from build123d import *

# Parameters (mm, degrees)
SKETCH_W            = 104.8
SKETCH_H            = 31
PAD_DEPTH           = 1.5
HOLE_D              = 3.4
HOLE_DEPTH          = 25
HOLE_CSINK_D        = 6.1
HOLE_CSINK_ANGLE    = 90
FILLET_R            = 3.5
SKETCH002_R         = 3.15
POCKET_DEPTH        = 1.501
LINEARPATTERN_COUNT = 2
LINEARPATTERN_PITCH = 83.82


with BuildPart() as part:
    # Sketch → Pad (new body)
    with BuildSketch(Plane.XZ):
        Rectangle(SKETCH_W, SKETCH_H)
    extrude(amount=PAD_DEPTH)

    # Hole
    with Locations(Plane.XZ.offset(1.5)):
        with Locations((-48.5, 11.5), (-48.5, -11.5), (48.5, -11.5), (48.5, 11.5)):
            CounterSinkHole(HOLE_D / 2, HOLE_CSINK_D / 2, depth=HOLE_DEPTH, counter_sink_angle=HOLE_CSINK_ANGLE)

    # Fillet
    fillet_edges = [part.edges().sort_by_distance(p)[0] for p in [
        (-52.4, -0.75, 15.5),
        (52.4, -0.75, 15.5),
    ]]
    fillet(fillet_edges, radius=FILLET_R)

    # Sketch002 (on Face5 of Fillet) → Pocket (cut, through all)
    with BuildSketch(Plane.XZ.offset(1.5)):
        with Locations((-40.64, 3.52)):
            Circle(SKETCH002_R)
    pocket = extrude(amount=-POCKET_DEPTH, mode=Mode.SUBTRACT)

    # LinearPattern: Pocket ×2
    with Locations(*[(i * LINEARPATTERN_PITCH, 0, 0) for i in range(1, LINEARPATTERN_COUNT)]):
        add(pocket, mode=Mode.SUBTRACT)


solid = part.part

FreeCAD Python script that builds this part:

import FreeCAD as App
import Part
import Sketcher

V = App.Vector
Q = App.Units.Quantity


def edges_at(feature, points):
    """Names of the edges that pass closest to the given points."""
    edges = feature.Shape.Edges
    near = lambda p: min(range(len(edges)), key=lambda i: edges[i].distToShape(Part.Vertex(*p))[0])
    return sorted({f"Edge{near(p) + 1}" for p in points})


def add_polygon(sketch, points):
    """Adds a closed chain of lines whose ends are joined by coincident constraints."""
    first, n = sketch.GeometryCount, len(points)
    for a, b in zip(points, points[1:] + points[:1]):
        sketch.addGeometry(Part.LineSegment(App.Vector(*a, 0), App.Vector(*b, 0)), False)
    for i in range(n):
        sketch.addConstraint(Sketcher.Constraint("Coincident", first + i, 2, first + (i + 1) % n, 1))

doc = App.newDocument("Part")
body = doc.addObject("PartDesign::Body", "Body")

sketch1 = doc.addObject("Sketcher::SketchObject", "Sketch")
body.addObject(sketch1)
sketch1.AttachmentSupport = (doc.XZ_Plane, [""])
sketch1.MapMode = "FlatFace"
add_polygon(sketch1, [(-52, 16), (-52, -16), (52, -16), (52, 16)])
sketch1.addConstraint([
    Sketcher.Constraint("Vertical", 0),
    Sketcher.Constraint("Horizontal", 1),
    Sketcher.Constraint("Vertical", 2),
    Sketcher.Constraint("Horizontal", 3),
    Sketcher.Constraint("Symmetric", 0, 2, 2, 2, -1, 1),
    Sketcher.Constraint("DistanceY", 0, 2, 0, 1, Q("31 mm")),
    Sketcher.Constraint("DistanceX", 1, 1, 1, 2, Q("104.8 mm")),
])
pad1 = doc.addObject("PartDesign::Pad", "Pad")
body.addObject(pad1)
pad1.Profile = sketch1
pad1.Length = 1.5

sketch2 = doc.addObject("Sketcher::SketchObject", "Sketch001")
body.addObject(sketch2)
sketch2.AttachmentSupport = (doc.XZ_Plane, [""])
sketch2.MapMode = "FlatFace"
sketch2.AttachmentOffset = App.Placement(V(0, 0, 1.5), App.Rotation())
sketch2.addGeometry([
    Part.Circle(V(-48.5, 11.5, 0), V(0, 0, 1), 1.7),
    Part.Circle(V(-48.5, -11.5, 0), V(0, 0, 1), 1.7),
    Part.Circle(V(48.5, -11.5, 0), V(0, 0, 1), 1.7),
    Part.Circle(V(48.5, 11.5, 0), V(0, 0, 1), 1.7),
], False)
sketch2.addConstraint([
    Sketcher.Constraint("Equal", 0, 1),
    Sketcher.Constraint("Equal", 1, 2),
    Sketcher.Constraint("Equal", 2, 3),
    Sketcher.Constraint("Symmetric", 0, 3, 2, 3, -1, 1),
    Sketcher.Constraint("Symmetric", 1, 3, 3, 3, -1, 1),
    Sketcher.Constraint("Symmetric", 1, 3, 2, 3, -2),
    Sketcher.Constraint("Diameter", 0, Q("3.4 mm")),
    Sketcher.Constraint("DistanceY", 1, 3, 0, 3, Q("23 mm")),
    Sketcher.Constraint("DistanceX", 1, 3, 2, 3, Q("97 mm")),
])
doc.recompute()
hole = doc.addObject("PartDesign::Hole", "Hole")
body.addObject(hole)
hole.Profile = sketch2
hole.ThreadType = "None"
hole.Diameter = 3.4
hole.DepthType = "Dimension"
hole.Depth = 25
hole.DrillPoint = "Flat"
hole.HoleCutType = "Countersink"
hole.HoleCutDiameter = 6.1
hole.HoleCutCountersinkAngle = 90
doc.recompute()

fillet = doc.addObject("PartDesign::Fillet", "Fillet")
body.addObject(fillet)
fillet.Base = (hole, edges_at(hole, [(-52.4, -0.75, 15.5), (52.4, -0.75, 15.5)]))
fillet.Radius = 3.5

sketch3 = doc.addObject("Sketcher::SketchObject", "Sketch002")
body.addObject(sketch3)
sketch3.AttachmentSupport = (doc.XZ_Plane, [""])
sketch3.MapMode = "FlatFace"
sketch3.AttachmentOffset = App.Placement(V(0, 0, 1.5), App.Rotation())
sketch3.addGeometry(Part.Circle(V(-40.6, 3.5, 0), V(0, 0, 1), 3.1), False)
sketch3.addConstraint([
    Sketcher.Constraint("Diameter", 0, Q("6.3 mm")),
    Sketcher.Constraint("DistanceX", 0, 3, -1, 1, Q("40.64 mm")),
    Sketcher.Constraint("DistanceY", -1, 1, 0, 3, Q("3.52 mm")),
])
pocket1 = doc.addObject("PartDesign::Pocket", "Pocket")
body.addObject(pocket1)
pocket1.Profile = sketch3
pocket1.Type = "ThroughAll"
doc.recompute()

linearpattern = doc.addObject("PartDesign::LinearPattern", "LinearPattern")
body.addObject(linearpattern)
linearpattern.Originals = [pocket1]
linearpattern.Direction = (doc.X_Axis, [""])
linearpattern.Mode = "offset"
linearpattern.Offset = 83.82
linearpattern.Occurrences = 2
body.Tip = linearpattern

doc.recompute()
